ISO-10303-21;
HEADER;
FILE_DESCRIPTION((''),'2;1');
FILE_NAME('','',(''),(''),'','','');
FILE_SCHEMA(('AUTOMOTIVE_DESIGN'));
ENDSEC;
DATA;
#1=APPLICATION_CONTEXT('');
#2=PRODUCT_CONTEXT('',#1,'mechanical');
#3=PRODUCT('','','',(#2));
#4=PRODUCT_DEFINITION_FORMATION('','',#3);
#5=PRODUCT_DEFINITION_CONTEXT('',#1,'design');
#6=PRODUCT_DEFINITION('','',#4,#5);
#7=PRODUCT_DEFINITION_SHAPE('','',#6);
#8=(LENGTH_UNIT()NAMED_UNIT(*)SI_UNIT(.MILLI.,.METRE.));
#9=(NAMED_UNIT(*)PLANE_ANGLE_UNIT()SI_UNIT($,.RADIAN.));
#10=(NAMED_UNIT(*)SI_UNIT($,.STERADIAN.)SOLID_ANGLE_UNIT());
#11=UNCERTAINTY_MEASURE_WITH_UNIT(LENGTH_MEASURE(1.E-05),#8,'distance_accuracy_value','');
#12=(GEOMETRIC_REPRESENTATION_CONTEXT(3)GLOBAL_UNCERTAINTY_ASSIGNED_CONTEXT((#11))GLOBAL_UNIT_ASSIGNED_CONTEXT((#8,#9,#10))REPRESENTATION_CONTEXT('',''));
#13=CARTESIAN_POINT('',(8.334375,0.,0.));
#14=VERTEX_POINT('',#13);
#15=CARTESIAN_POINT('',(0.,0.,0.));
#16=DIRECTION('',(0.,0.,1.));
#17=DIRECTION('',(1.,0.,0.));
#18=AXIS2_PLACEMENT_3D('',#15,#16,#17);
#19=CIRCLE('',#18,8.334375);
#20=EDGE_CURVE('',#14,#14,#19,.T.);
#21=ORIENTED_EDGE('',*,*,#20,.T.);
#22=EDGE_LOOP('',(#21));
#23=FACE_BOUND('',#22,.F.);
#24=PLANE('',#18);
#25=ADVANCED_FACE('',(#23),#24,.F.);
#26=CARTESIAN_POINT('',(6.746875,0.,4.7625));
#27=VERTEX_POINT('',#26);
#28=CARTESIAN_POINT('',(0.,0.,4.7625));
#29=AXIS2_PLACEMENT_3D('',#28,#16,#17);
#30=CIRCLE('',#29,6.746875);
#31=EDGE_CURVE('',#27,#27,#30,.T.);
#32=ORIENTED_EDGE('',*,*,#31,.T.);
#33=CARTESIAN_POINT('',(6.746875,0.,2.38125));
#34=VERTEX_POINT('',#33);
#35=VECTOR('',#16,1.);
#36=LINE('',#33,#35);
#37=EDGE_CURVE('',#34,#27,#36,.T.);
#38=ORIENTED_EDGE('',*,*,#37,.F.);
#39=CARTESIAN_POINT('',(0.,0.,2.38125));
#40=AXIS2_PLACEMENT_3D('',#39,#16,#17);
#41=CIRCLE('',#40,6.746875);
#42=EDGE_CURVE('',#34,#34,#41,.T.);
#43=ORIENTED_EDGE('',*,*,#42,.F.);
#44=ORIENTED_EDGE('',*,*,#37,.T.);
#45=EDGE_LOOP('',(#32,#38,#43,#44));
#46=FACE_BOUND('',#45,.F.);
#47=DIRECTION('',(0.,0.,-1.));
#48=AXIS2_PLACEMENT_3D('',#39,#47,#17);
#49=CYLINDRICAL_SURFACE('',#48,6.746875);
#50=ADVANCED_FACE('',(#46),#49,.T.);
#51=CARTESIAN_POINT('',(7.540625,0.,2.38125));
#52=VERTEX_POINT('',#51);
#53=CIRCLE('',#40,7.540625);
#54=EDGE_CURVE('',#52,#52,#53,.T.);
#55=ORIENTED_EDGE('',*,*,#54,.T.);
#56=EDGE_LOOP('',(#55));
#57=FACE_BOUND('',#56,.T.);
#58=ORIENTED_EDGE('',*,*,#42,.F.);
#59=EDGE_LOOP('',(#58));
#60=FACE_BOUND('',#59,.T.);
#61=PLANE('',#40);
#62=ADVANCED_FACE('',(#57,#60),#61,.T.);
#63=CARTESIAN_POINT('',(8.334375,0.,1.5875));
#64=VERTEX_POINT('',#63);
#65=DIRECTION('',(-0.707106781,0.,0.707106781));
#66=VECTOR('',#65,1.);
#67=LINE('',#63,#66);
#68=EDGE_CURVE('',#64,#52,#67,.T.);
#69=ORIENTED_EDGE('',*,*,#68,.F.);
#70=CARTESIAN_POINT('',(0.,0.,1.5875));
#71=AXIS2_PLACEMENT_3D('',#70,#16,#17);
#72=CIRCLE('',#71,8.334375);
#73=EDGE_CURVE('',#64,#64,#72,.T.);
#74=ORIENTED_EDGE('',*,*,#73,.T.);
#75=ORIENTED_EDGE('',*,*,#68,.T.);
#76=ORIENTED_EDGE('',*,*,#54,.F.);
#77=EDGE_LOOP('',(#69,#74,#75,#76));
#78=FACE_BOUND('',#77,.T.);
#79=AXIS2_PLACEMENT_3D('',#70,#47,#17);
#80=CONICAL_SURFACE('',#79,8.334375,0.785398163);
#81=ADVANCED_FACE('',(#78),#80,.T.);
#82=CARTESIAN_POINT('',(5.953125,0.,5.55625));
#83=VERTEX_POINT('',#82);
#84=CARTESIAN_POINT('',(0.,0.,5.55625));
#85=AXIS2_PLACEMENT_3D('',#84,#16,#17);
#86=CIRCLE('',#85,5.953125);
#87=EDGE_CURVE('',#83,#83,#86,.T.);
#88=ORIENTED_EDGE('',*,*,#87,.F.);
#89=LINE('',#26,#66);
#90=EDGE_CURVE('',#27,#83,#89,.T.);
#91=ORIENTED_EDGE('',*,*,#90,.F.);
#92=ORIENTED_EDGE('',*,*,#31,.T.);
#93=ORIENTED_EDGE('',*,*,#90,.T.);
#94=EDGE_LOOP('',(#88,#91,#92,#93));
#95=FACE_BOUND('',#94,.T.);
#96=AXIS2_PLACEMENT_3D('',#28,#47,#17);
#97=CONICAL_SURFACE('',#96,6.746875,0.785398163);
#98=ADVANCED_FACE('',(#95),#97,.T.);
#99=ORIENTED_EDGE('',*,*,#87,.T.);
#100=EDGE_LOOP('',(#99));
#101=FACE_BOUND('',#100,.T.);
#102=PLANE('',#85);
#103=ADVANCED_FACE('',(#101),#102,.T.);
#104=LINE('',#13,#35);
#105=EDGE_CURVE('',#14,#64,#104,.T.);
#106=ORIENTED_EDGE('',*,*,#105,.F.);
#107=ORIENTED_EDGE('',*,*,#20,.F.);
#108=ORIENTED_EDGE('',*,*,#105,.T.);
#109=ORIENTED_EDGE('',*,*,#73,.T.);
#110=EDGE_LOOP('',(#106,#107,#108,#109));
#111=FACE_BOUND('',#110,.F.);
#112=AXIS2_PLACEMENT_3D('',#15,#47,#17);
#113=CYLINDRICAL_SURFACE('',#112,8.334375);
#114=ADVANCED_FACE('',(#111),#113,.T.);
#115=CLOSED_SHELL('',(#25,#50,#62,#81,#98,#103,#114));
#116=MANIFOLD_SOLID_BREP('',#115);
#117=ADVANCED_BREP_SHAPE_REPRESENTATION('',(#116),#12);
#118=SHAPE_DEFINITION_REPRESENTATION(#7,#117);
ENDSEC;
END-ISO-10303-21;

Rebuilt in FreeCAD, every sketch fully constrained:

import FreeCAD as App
import Part
import Sketcher
from FreeCAD import Vector
Q = App.Units.Quantity


def edges_at(feature, points):
    """Names of the edges that pass closest to the given points."""
    edges = feature.Shape.Edges
    near = lambda p: min(range(len(edges)), key=lambda i: edges[i].distToShape(Part.Vertex(*p))[0])
    return sorted({f"Edge{near(p) + 1}" for p in points})

doc = App.newDocument("Part")
body = doc.addObject("PartDesign::Body", "Body")

# Sketch on XY plane
sketch1 = body.newObject("Sketcher::SketchObject", "Sketch")
sketch1.AttachmentSupport = (doc.getObject("XY_Plane"), [""])
sketch1.MapMode = "FlatFace"
sketch1.addGeometry(Part.Circle(Vector(0, 0, 0), Vector(0, 0, 1), 8), False)
sketch1.addConstraint([
    Sketcher.Constraint("Coincident", 0, 3, -1, 1),
    Sketcher.Constraint("Diameter", 0, Q("0.65625 in")),
])
pad1 = body.newObject("PartDesign::Pad", "Pad")
pad1.Profile = sketch1
pad1.Length = Q("0.09375 in")

# Sketch on XY plane
sketch2 = body.newObject("Sketcher::SketchObject", "Sketch001")
sketch2.AttachmentSupport = (doc.getObject("XY_Plane"), [""])
sketch2.MapMode = "FlatFace"
sketch2.AttachmentOffset = App.Placement(Vector(0, 0, 0.09375 * 25.4), App.Rotation())
sketch2.addGeometry(Part.Circle(Vector(0, 0, 0), Vector(0, 0, 1), 7), False)
sketch2.addConstraint([
    Sketcher.Constraint("Coincident", 0, 3, -1, 1),
    Sketcher.Constraint("Diameter", 0, Q("0.53125 in")),
])
pad2 = body.newObject("PartDesign::Pad", "Pad001")
pad2.Profile = sketch2
pad2.Length = Q("0.125 in")
doc.recompute()

chamfer = body.newObject("PartDesign::Chamfer", "Chamfer")
chamfer.Base = (pad2, edges_at(pad2, [(-8.334, 0, 2.381), (-6.747, 0, 5.556)]))
chamfer.Size = Q("0.03125 in")

doc.recompute()
